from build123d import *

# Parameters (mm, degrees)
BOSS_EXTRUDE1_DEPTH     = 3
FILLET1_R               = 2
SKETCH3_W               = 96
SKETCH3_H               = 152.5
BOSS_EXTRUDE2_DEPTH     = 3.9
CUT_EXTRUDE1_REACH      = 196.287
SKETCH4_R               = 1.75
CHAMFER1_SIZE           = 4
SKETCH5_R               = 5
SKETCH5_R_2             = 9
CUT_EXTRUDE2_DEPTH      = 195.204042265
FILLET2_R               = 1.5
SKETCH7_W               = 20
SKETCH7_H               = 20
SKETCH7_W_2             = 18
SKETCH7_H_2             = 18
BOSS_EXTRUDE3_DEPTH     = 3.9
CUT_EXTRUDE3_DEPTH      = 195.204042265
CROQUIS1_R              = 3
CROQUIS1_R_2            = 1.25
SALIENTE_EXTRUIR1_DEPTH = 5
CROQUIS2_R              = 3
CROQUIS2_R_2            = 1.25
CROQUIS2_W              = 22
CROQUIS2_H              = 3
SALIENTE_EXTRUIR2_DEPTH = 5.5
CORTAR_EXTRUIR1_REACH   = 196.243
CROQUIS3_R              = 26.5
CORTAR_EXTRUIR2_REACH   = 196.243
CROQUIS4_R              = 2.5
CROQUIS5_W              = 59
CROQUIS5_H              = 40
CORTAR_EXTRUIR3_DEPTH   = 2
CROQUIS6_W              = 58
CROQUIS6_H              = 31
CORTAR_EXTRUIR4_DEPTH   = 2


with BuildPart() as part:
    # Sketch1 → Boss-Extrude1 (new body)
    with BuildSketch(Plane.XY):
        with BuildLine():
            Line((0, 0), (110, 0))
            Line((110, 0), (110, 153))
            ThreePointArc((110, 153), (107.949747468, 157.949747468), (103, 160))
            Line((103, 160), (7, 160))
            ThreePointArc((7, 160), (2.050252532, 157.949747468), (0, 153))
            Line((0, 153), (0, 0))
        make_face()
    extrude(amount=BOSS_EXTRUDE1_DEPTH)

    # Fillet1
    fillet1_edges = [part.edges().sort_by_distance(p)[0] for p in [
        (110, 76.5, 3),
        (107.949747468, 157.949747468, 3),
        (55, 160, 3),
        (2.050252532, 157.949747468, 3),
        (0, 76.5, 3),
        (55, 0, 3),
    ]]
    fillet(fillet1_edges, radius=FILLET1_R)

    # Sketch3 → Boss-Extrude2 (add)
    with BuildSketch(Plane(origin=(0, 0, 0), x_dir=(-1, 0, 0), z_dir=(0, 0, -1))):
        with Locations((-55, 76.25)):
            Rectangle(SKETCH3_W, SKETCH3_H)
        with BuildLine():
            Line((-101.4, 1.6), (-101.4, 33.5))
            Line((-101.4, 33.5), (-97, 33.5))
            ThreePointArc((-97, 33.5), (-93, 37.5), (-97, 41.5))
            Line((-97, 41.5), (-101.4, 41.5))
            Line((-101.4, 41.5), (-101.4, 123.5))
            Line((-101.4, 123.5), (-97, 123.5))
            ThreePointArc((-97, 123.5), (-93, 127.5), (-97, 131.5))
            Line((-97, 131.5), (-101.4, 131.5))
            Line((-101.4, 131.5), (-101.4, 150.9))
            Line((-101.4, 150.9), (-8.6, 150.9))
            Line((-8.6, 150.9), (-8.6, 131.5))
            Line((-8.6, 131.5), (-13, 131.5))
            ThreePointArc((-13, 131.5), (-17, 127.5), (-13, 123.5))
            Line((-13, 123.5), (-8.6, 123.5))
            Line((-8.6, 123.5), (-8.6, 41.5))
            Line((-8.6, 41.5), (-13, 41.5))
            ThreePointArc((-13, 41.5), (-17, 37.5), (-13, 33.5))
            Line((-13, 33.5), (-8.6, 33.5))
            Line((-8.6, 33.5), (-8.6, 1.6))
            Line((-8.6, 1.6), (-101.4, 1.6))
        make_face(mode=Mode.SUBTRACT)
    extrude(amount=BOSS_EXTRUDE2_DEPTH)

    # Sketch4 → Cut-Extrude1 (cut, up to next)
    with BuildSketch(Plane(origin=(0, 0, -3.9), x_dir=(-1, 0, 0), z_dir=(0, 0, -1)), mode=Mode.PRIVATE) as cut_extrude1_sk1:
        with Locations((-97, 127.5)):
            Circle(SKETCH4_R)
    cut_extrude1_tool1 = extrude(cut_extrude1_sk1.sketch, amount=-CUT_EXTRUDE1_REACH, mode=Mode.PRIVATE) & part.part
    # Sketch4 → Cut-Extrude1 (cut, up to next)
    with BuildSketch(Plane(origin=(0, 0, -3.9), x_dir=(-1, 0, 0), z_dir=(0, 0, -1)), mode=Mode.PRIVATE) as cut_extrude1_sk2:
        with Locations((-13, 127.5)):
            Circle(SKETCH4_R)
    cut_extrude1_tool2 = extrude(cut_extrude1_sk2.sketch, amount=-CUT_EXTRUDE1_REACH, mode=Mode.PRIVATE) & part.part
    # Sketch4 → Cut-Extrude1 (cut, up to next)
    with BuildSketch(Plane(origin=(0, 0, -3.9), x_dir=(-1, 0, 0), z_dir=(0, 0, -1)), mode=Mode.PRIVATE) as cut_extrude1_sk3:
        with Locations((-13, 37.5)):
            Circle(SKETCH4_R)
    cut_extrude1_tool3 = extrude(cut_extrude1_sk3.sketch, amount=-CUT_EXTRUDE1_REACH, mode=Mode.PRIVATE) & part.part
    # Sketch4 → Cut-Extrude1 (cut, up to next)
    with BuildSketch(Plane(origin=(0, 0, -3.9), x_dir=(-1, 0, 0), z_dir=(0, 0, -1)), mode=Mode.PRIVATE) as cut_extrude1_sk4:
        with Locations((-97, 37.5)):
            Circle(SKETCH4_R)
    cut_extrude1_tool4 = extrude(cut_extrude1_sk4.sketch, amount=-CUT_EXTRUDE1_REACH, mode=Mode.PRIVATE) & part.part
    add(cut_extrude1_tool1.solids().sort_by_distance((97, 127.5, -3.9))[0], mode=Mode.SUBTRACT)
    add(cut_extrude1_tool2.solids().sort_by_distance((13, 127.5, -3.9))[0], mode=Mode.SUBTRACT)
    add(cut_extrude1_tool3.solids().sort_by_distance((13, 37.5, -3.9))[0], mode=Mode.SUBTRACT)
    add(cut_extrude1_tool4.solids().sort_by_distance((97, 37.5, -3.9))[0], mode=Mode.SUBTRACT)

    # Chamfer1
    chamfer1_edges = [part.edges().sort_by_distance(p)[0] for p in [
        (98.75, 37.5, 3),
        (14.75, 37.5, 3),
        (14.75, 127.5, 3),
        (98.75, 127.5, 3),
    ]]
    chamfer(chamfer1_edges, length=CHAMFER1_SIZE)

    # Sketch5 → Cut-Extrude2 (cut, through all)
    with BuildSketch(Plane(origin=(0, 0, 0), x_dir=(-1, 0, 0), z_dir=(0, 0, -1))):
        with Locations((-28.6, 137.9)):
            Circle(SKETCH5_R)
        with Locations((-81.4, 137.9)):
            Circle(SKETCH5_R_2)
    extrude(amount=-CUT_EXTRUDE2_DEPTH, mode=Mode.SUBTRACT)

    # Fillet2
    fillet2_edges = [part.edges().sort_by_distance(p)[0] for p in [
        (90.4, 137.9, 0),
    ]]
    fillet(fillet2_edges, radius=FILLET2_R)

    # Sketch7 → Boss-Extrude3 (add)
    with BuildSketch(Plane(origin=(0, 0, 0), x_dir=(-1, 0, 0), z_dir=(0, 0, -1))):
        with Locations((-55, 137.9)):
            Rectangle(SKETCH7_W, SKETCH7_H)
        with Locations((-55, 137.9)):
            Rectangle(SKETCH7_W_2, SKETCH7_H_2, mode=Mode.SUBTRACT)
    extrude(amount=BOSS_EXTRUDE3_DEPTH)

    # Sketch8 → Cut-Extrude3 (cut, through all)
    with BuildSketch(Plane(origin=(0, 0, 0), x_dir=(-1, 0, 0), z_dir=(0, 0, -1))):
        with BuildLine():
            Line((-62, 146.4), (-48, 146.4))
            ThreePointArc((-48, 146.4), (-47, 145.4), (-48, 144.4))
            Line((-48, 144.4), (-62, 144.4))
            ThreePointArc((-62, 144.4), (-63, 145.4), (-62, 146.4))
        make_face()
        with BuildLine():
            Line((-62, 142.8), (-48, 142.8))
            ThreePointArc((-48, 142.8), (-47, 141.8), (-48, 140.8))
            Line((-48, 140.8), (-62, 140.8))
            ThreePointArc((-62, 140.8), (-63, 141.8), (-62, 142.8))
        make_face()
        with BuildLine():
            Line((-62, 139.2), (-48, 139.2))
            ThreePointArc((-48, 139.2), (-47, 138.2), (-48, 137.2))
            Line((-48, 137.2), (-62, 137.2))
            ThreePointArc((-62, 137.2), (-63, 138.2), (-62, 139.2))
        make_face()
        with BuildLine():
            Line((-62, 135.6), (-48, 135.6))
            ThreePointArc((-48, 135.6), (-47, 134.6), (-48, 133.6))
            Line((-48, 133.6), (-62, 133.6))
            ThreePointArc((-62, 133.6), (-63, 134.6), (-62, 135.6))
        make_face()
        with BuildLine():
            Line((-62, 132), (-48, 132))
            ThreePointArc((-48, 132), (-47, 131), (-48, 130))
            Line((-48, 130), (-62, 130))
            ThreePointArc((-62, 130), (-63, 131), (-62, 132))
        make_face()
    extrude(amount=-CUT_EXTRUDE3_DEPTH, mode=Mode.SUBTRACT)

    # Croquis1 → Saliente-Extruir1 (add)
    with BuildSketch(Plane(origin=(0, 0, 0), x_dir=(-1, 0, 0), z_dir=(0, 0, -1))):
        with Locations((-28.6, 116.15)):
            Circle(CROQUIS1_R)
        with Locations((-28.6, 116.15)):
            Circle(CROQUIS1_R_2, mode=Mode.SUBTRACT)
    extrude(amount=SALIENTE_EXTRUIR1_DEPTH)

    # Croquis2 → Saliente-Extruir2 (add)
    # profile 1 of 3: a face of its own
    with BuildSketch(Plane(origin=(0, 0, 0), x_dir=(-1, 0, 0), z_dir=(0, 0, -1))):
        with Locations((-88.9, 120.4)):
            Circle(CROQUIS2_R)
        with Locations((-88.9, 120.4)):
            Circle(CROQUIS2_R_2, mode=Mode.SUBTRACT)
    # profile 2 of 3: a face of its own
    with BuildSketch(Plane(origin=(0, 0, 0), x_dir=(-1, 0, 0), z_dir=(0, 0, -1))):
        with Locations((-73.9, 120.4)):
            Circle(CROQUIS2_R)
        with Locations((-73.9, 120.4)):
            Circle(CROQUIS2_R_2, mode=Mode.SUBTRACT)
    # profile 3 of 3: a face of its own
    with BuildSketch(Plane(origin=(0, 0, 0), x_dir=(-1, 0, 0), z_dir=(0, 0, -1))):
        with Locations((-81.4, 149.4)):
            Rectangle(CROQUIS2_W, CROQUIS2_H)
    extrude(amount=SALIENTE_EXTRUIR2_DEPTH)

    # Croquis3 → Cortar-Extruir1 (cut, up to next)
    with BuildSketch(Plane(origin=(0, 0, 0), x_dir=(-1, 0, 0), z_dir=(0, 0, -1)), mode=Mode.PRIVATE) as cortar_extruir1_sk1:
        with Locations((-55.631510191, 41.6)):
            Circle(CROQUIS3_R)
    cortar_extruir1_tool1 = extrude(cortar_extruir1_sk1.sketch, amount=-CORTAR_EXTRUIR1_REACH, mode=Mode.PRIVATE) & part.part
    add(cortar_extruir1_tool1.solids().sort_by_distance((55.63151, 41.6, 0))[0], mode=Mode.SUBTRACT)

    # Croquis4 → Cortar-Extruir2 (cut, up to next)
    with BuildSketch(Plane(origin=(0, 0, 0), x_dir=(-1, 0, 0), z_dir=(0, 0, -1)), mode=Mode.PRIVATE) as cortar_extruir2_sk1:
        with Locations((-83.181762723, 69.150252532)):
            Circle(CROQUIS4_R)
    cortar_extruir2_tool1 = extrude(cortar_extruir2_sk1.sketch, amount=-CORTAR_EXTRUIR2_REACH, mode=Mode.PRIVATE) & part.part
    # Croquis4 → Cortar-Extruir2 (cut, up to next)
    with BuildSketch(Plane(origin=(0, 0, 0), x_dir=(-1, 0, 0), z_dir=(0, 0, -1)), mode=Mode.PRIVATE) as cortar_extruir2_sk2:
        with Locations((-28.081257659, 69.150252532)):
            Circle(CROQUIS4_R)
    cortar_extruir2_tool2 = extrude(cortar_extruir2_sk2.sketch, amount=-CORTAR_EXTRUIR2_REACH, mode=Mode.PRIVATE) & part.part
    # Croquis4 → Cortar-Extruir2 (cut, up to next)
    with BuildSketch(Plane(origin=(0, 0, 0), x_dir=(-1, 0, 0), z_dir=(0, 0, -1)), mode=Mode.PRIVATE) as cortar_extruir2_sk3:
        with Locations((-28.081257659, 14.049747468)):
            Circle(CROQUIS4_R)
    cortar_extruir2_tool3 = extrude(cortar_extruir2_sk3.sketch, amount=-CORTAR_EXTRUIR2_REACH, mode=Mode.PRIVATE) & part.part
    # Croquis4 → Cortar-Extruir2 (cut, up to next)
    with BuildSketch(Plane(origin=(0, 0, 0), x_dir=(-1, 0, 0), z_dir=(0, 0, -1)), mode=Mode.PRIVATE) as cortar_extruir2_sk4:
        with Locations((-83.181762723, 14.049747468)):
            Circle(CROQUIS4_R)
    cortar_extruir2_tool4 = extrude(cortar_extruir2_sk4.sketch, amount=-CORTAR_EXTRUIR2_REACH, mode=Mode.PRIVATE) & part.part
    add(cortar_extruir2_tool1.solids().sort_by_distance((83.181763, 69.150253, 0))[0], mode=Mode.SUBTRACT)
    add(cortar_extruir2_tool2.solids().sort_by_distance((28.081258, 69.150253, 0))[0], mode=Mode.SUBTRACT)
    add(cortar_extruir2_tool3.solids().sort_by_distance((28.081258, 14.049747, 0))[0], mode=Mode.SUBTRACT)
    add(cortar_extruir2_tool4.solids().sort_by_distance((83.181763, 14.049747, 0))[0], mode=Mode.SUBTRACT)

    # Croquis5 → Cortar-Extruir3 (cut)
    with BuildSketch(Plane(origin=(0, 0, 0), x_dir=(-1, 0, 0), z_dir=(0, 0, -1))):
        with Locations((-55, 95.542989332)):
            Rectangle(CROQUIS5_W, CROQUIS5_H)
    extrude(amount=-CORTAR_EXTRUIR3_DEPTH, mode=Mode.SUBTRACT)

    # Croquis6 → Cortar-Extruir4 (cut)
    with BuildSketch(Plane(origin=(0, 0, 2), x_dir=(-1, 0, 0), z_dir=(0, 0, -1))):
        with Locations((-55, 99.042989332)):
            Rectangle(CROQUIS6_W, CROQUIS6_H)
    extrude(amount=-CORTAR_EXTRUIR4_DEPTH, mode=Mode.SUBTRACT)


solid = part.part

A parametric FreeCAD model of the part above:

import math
import FreeCAD as App
import Part
import Sketcher

V = App.Vector


def edges_at(feature, points):
    """Names of the edges that pass closest to the given points."""
    edges = feature.Shape.Edges
    near = lambda p: min(range(len(edges)), key=lambda i: edges[i].distToShape(Part.Vertex(*p))[0])
    return sorted({f"Edge{near(p) + 1}" for p in points})


def add_polygon(sketch, points):
    """Adds a closed chain of lines whose ends are joined by coincident constraints."""
    first, n = sketch.GeometryCount, len(points)
    for a, b in zip(points, points[1:] + points[:1]):
        sketch.addGeometry(Part.LineSegment(App.Vector(*a, 0), App.Vector(*b, 0)), False)
    for i in range(n):
        sketch.addConstraint(Sketcher.Constraint("Coincident", first + i, 2, first + (i + 1) % n, 1))

doc = App.newDocument("Part")
params = doc.addObject("Spreadsheet::Sheet", "Params")
for row, (alias, value) in enumerate([
    ("sketch1_radius", "7 mm"),
    ("sketch1_width", "110 mm"),
    ("sketch1_height", "153 mm"),
    ("pad1_length", "3 mm"),
    ("fillet_radius", "2 mm"),
    ("sketch2_radius", "4 mm"),
    ("sketch2_width", "96 mm"),
    ("sketch2_height", "82 mm"),
    ("sketch2_width2", "92.8 mm"),
    ("sketch2_width3", "4.4 mm"),
    ("pad2_length", "3.9 mm"),
    ("sketch3_diameter", "3.5 mm"),
    ("sketch4_diameter", "3.5 mm"),
    ("sketch5_diameter", "3.5 mm"),
    ("sketch6_diameter", "3.5 mm"),
    ("chamfer_size", "4 mm"),
    ("sketch7_diameter", "10 mm"),
    ("sketch7_diameter2", "18 mm"),
    ("fillet2_radius", "1.5 mm"),
    ("sketch8_width", "20 mm"),
    ("sketch8_width2", "18 mm"),
    ("pad3_length", "3.9 mm"),
    ("sketch9_radius", "1 mm"),
    ("sketch9_width", "14 mm"),
    ("sketch10_diameter", "6 mm"),
    ("sketch10_diameter2", "2.5 mm"),
    ("pad4_length", "5 mm"),
    ("sketch11_diameter", "6 mm"),
    ("sketch11_diameter2", "2.5 mm"),
    ("sketch11_width", "22 mm"),
    ("sketch11_height", "3 mm"),
    ("pad5_length", "5.5 mm"),
    ("sketch12_diameter", "53 mm"),
    ("sketch13_diameter", "5 mm"),
    ("sketch14_diameter", "5 mm"),
    ("sketch15_diameter", "5 mm"),
    ("sketch16_diameter", "5 mm"),
    ("sketch17_width", "59 mm"),
    ("sketch17_height", "40 mm"),
    ("pocket12_length", "2 mm"),
    ("sketch18_width", "58 mm"),
    ("sketch18_height", "31 mm"),
    ("pocket13_length", "2 mm"),
], start=1):
    params.set(f"A{row}", alias)
    params.set(f"B{row}", "=" + value)
    params.setAlias(f"B{row}", alias)

body = doc.addObject("PartDesign::Body", "Body")

sketch1 = body.newObject("Sketcher::SketchObject", "Sketch")
sketch1.AttachmentSupport = (doc.getObject("XY_Plane"), [""])
sketch1.MapMode = "FlatFace"
sketch1.addGeometry([
    Part.LineSegment(V(0, 0, 0), V(110, 0, 0)),
    Part.LineSegment(V(110, 0, 0), V(110, 153, 0)),
    Part.ArcOfCircle(Part.Circle(V(103, 153, 0), V(0, 0, 1), 7), math.radians(0), math.radians(90)),
    Part.LineSegment(V(103, 160, 0), V(7, 160, 0)),
    Part.ArcOfCircle(Part.Circle(V(7, 153, 0), V(0, 0, 1), 7), math.radians(90), math.radians(180)),
    Part.LineSegment(V(0, 153, 0), V(0, 0, 0)),
], False)
sketch1.addConstraint([
    Sketcher.Constraint("Coincident", 0, 2, 1, 1),
    Sketcher.Constraint("Tangent", 1, 2, 2, 1),
    Sketcher.Constraint("Tangent", 2, 2, 3, 1),
    Sketcher.Constraint("Tangent", 3, 2, 4, 1),
    Sketcher.Constraint("Tangent", 4, 2, 5, 1),
    Sketcher.Constraint("Coincident", 5, 2, 0, 1),
    Sketcher.Constraint("Horizontal", 0),
    Sketcher.Constraint("Vertical", 1),
    Sketcher.Constraint("Horizontal", 3),
    Sketcher.Constraint("Vertical", 5),
    Sketcher.Constraint("Coincident", 5, 2, -1, 1),
    Sketcher.Constraint("Equal", 2, 4),
    Sketcher.Constraint("Radius", 2, 7.0),
    Sketcher.Constraint("DistanceX", 0, 1, 0, 2, 110.0),
    Sketcher.Constraint("DistanceY", 1, 1, 1, 2, 153.0),
])
sketch1.setExpression("Constraints[12]", "Params.sketch1_radius")
sketch1.setExpression("Constraints[13]", "Params.sketch1_width")
sketch1.setExpression("Constraints[14]", "Params.sketch1_height")
pad1 = body.newObject("PartDesign::Pad", "Pad")
pad1.Profile = sketch1
pad1.setExpression("Length", "Params.pad1_length")
doc.recompute()

fillet = body.newObject("PartDesign::Fillet", "Fillet")
fillet.Base = (pad1, edges_at(pad1, [
    (110, 76.5, 3),
    (107.95, 157.95, 3),
    (55, 160, 3),
    (2.05, 157.95, 3),
    (0, 76.5, 3),
    (55, 0, 3),
]))
fillet.setExpression("Radius", "Params.fillet_radius")

sketch2 = body.newObject("Sketcher::SketchObject", "Sketch001")
sketch2.AttachmentSupport = (doc.getObject("XY_Plane"), [""])
sketch2.MapMode = "FlatFace"
add_polygon(sketch2, [(103, 152.5), (103, 0), (7, 0), (7, 152.5)])
sketch2.addGeometry(Part.LineSegment(V(8.6, 1.6, 0), V(101.4, 1.6, 0)), False)
sketch2.addGeometry(Part.LineSegment(V(101.4, 1.6, 0), V(101.4, 33.5, 0)), False)
sketch2.addGeometry(Part.LineSegment(V(101.4, 33.5, 0), V(97, 33.5, 0)), False)
sketch2.addGeometry(Part.ArcOfCircle(Part.Circle(V(97, 37.5, 0), V(0, 0, 1), 4), math.radians(90), math.radians(270)), False)
sketch2.addGeometry(Part.LineSegment(V(97, 41.5, 0), V(101.4, 41.5, 0)), False)
sketch2.addGeometry(Part.LineSegment(V(101.4, 41.5, 0), V(101.4, 123.5, 0)), False)
sketch2.addGeometry(Part.LineSegment(V(101.4, 123.5, 0), V(97, 123.5, 0)), False)
sketch2.addGeometry(Part.ArcOfCircle(Part.Circle(V(97, 127.5, 0), V(0, 0, 1), 4), math.radians(90), math.radians(270)), False)
sketch2.addGeometry(Part.LineSegment(V(97, 131.5, 0), V(101.4, 131.5, 0)), False)
sketch2.addGeometry(Part.LineSegment(V(101.4, 131.5, 0), V(101.4, 150.9, 0)), False)
sketch2.addGeometry(Part.LineSegment(V(101.4, 150.9, 0), V(8.6, 150.9, 0)), False)
sketch2.addGeometry(Part.LineSegment(V(8.6, 150.9, 0), V(8.6, 131.5, 0)), False)
sketch2.addGeometry(Part.LineSegment(V(8.6, 131.5, 0), V(13, 131.5, 0)), False)
sketch2.addGeometry(Part.ArcOfCircle(Part.Circle(V(13, 127.5, 0), V(0, 0, 1), 4), math.radians(-90), math.radians(90)), False)
sketch2.addGeometry(Part.LineSegment(V(13, 123.5, 0), V(8.6, 123.5, 0)), False)
sketch2.addGeometry(Part.LineSegment(V(8.6, 123.5, 0), V(8.6, 41.5, 0)), False)
sketch2.addGeometry(Part.LineSegment(V(8.6, 41.5, 0), V(13, 41.5, 0)), False)
sketch2.addGeometry(Part.ArcOfCircle(Part.Circle(V(13, 37.5, 0), V(0, 0, 1), 4), math.radians(-90), math.radians(90)), False)
sketch2.addGeometry(Part.LineSegment(V(13, 33.5, 0), V(8.6, 33.5, 0)), False)
sketch2.addGeometry(Part.LineSegment(V(8.6, 33.5, 0), V(8.6, 1.6, 0)), False)
sketch2.addConstraint([
    Sketcher.Constraint("Coincident", 4, 2, 5, 1),
    Sketcher.Constraint("Coincident", 5, 2, 6, 1),
    Sketcher.Constraint("Tangent", 6, 2, 7, 2),
    Sketcher.Constraint("Tangent", 7, 1, 8, 1),
    Sketcher.Constraint("Coincident", 8, 2, 9, 1),
    Sketcher.Constraint("Coincident", 9, 2, 10, 1),
    Sketcher.Constraint("Tangent", 10, 2, 11, 2),
    Sketcher.Constraint("Tangent", 11, 1, 12, 1),
    Sketcher.Constraint("Coincident", 12, 2, 13, 1),
    Sketcher.Constraint("Coincident", 13, 2, 14, 1),
    Sketcher.Constraint("Coincident", 14, 2, 15, 1),
    Sketcher.Constraint("Coincident", 15, 2, 16, 1),
    Sketcher.Constraint("Tangent", 16, 2, 17, 2),
    Sketcher.Constraint("Tangent", 17, 1, 18, 1),
    Sketcher.Constraint("Coincident", 18, 2, 19, 1),
    Sketcher.Constraint("Coincident", 19, 2, 20, 1),
    Sketcher.Constraint("Tangent", 20, 2, 21, 2),
    Sketcher.Constraint("Tangent", 21, 1, 22, 1),
    Sketcher.Constraint("Coincident", 22, 2, 23, 1),
    Sketcher.Constraint("Coincident", 23, 2, 4, 1),
    Sketcher.Constraint("Vertical", 0),
    Sketcher.Constraint("Horizontal", 1),
    Sketcher.Constraint("Vertical", 2),
    Sketcher.Constraint("Horizontal", 3),
    Sketcher.Constraint("Horizontal", 4),
    Sketcher.Constraint("Vertical", 5),
    Sketcher.Constraint("Horizontal", 6),
    Sketcher.Constraint("Horizontal", 8),
    Sketcher.Constraint("Vertical", 9),
    Sketcher.Constraint("Horizontal", 10),
    Sketcher.Constraint("Horizontal", 12),
    Sketcher.Constraint("Vertical", 13),
    Sketcher.Constraint("Horizontal", 14),
    Sketcher.Constraint("Vertical", 15),
    Sketcher.Constraint("Horizontal", 16),
    Sketcher.Constraint("Horizontal", 18),
    Sketcher.Constraint("Vertical", 19),
    Sketcher.Constraint("Horizontal", 20),
    Sketcher.Constraint("Horizontal", 22),
    Sketcher.Constraint("Vertical", 23),
    Sketcher.Constraint("Equal", 7, 11),
    Sketcher.Constraint("Equal", 11, 17),
    Sketcher.Constraint("Equal", 17, 21),
    Sketcher.Constraint("PointOnObject", 0, 2, -1),
    Sketcher.Constraint("Horizontal", 11, 3, 17, 3),
    Sketcher.Constraint("Horizontal", 7, 3, 21, 3),
    Sketcher.Constraint("Vertical", 7, 3, 11, 3),
    Sketcher.Constraint("Vertical", 17, 3, 21, 3),
    Sketcher.Constraint("Vertical", 5, 2, 8, 2),
    Sketcher.Constraint("Vertical", 9, 2, 12, 2),
    Sketcher.Constraint("Vertical", 15, 2, 18, 2),
    Sketcher.Constraint("Vertical", 19, 2, 22, 2),
    Sketcher.Constraint("Equal", 12, 16),
    Sketcher.Constraint("Radius", 7, 4.0),
    Sketcher.Constraint("DistanceX", 1, 2, 1, 1, 96.0),
    Sketcher.Constraint("DistanceY", 9, 1, 9, 2, 82.0),
    Sketcher.Constraint("DistanceX", 4, 1, 4, 2, 92.8),
    Sketcher.Constraint("DistanceX", 6, 2, 6, 1, 4.4),
    Sketcher.Constraint("DistanceY", 0, 2, 0, 1, 152.5),
    Sketcher.Constraint("DistanceY", 5, 1, 5, 2, 31.9),
    Sketcher.Constraint("DistanceY", 13, 1, 13, 2, 19.4),
    Sketcher.Constraint("DistanceX", -1, 1, 7, 3, 97.0),
    Sketcher.Constraint("DistanceX", -1, 1, 0, 2, 103.0),
    Sketcher.Constraint("DistanceY", 17, 3, 2, 2, 25.0),
])
sketch2.setExpression("Constraints[57]", "Params.sketch2_radius")
sketch2.setExpression("Constraints[58]", "Params.sketch2_width")
sketch2.setExpression("Constraints[59]", "Params.sketch2_height")
sketch2.setExpression("Constraints[60]", "Params.sketch2_width2")
sketch2.setExpression("Constraints[61]", "Params.sketch2_width3")
pad2 = body.newObject("PartDesign::Pad", "Pad001")
pad2.Profile = sketch2
pad2.setExpression("Length", "Params.pad2_length")
pad2.Reversed = True

sketch3 = body.newObject("Sketcher::SketchObject", "Sketch002")
sketch3.AttachmentSupport = (doc.getObject("XY_Plane"), [""])
sketch3.MapMode = "FlatFace"
sketch3.AttachmentOffset = App.Placement(V(0, 0, -3.9), App.Rotation())
sketch3.addGeometry(Part.Circle(V(97, 127.5, 0), V(0, 0, 1), 1.8), False)
sketch3.addConstraint([
    Sketcher.Constraint("Diameter", 0, 3.5),
    Sketcher.Constraint("DistanceX", -1, 1, 0, 3, 97.0),
    Sketcher.Constraint("DistanceY", -1, 1, 0, 3, 127.5),
])
sketch3.setExpression("Constraints[0]", "Params.sketch3_diameter")
pocket1 = body.newObject("PartDesign::Pocket", "Pocket")
pocket1.Profile = sketch3
pocket1.Type = "UpToFirst"
pocket1.Reversed = True

sketch4 = body.newObject("Sketcher::SketchObject", "Sketch003")
sketch4.AttachmentSupport = (doc.getObject("XY_Plane"), [""])
sketch4.MapMode = "FlatFace"
sketch4.AttachmentOffset = App.Placement(V(0, 0, -3.9), App.Rotation())
sketch4.addGeometry(Part.Circle(V(13, 127.5, 0), V(0, 0, 1), 1.8), False)
sketch4.addConstraint([
    Sketcher.Constraint("Diameter", 0, 3.5),
    Sketcher.Constraint("DistanceX", -1, 1, 0, 3, 13.0),
    Sketcher.Constraint("DistanceY", -1, 1, 0, 3, 127.5),
])
sketch4.setExpression("Constraints[0]", "Params.sketch4_diameter")
pocket2 = body.newObject("PartDesign::Pocket", "Pocket001")
pocket2.Profile = sketch4
pocket2.Type = "UpToFirst"
pocket2.Reversed = True

sketch5 = body.newObject("Sketcher::SketchObject", "Sketch004")
sketch5.AttachmentSupport = (doc.getObject("XY_Plane"), [""])
sketch5.MapMode = "FlatFace"
sketch5.AttachmentOffset = App.Placement(V(0, 0, -3.9), App.Rotation())
sketch5.addGeometry(Part.Circle(V(13, 37.5, 0), V(0, 0, 1), 1.8), False)
sketch5.addConstraint([
    Sketcher.Constraint("Diameter", 0, 3.5),
    Sketcher.Constraint("DistanceX", -1, 1, 0, 3, 13.0),
    Sketcher.Constraint("DistanceY", -1, 1, 0, 3, 37.5),
])
sketch5.setExpression("Constraints[0]", "Params.sketch5_diameter")
pocket3 = body.newObject("PartDesign::Pocket", "Pocket002")
pocket3.Profile = sketch5
pocket3.Type = "UpToFirst"
pocket3.Reversed = True

sketch6 = body.newObject("Sketcher::SketchObject", "Sketch005")
sketch6.AttachmentSupport = (doc.getObject("XY_Plane"), [""])
sketch6.MapMode = "FlatFace"
sketch6.AttachmentOffset = App.Placement(V(0, 0, -3.9), App.Rotation())
sketch6.addGeometry(Part.Circle(V(97, 37.5, 0), V(0, 0, 1), 1.8), False)
sketch6.addConstraint([
    Sketcher.Constraint("Diameter", 0, 3.5),
    Sketcher.Constraint("DistanceX", -1, 1, 0, 3, 97.0),
    Sketcher.Constraint("DistanceY", -1, 1, 0, 3, 37.5),
])
sketch6.setExpression("Constraints[0]", "Params.sketch6_diameter")
pocket4 = body.newObject("PartDesign::Pocket", "Pocket003")
pocket4.Profile = sketch6
pocket4.Type = "UpToFirst"
pocket4.Reversed = True
doc.recompute()

chamfer = body.newObject("PartDesign::Chamfer", "Chamfer")
chamfer.Base = (pocket4, edges_at(pocket4, [
    (98.75, 37.5, 3),
    (14.75, 37.5, 3),
    (14.75, 127.5, 3),
    (98.75, 127.5, 3),
]))
chamfer.setExpression("Size", "Params.chamfer_size")

sketch7 = body.newObject("Sketcher::SketchObject", "Sketch006")
sketch7.AttachmentSupport = (doc.getObject("XY_Plane"), [""])
sketch7.MapMode = "FlatFace"
sketch7.addGeometry([
    Part.Circle(V(29, 138, 0), V(0, 0, 1), 5),
    Part.Circle(V(81, 138, 0), V(0, 0, 1), 9),
], False)
sketch7.addConstraint([
    Sketcher.Constraint("Horizontal", 0, 3, 1, 3),
    Sketcher.Constraint("Diameter", 0, 10.0),
    Sketcher.Constraint("Diameter", 1, 18.0),
    Sketcher.Constraint("DistanceX", -1, 1, 0, 3, 28.6),
    Sketcher.Constraint("DistanceY", -1, 1, 0, 3, 137.9),
    Sketcher.Constraint("DistanceX", -1, 1, 1, 3, 81.4),
])
sketch7.setExpression("Constraints[1]", "Params.sketch7_diameter")
sketch7.setExpression("Constraints[2]", "Params.sketch7_diameter2")
pocket5 = body.newObject("PartDesign::Pocket", "Pocket004")
pocket5.Profile = sketch7
pocket5.Type = "ThroughAll"
pocket5.Reversed = True
doc.recompute()

fillet2 = body.newObject("PartDesign::Fillet", "Fillet001")
fillet2.Base = (pocket5, edges_at(pocket5, [(90.4, 137.9, 0)]))
fillet2.setExpression("Radius", "Params.fillet2_radius")

sketch8 = body.newObject("Sketcher::SketchObject", "Sketch007")
sketch8.AttachmentSupport = (doc.getObject("XY_Plane"), [""])
sketch8.MapMode = "FlatFace"
add_polygon(sketch8, [(65, 148), (65, 128), (45, 128), (45, 148)])
add_polygon(sketch8, [(46, 129), (64, 129), (64, 147), (46, 147)])
sketch8.addConstraint([
    Sketcher.Constraint("Vertical", 0),
    Sketcher.Constraint("Horizontal", 1),
    Sketcher.Constraint("Vertical", 2),
    Sketcher.Constraint("Horizontal", 3),
    Sketcher.Constraint("Horizontal", 4),
    Sketcher.Constraint("Vertical", 5),
    Sketcher.Constraint("Horizontal", 6),
    Sketcher.Constraint("Vertical", 7),
    Sketcher.Constraint("Equal", 3, 0),
    Sketcher.Constraint("Equal", 6, 5),
    Sketcher.Constraint("DistanceX", 1, 2, 1, 1, 20.0),
    Sketcher.Constraint("DistanceX", 4, 1, 4, 2, 18.0),
    Sketcher.Constraint("DistanceX", -1, 1, 0, 2, 65.0),
    Sketcher.Constraint("DistanceX", -1, 1, 4, 2, 64.0),
    Sketcher.Constraint("DistanceY", 0, 2, 4, 2, 1.0),
    Sketcher.Constraint("DistanceY", -1, 1, 0, 2, 127.9),
])
sketch8.setExpression("Constraints[18]", "Params.sketch8_width")
sketch8.setExpression("Constraints[19]", "Params.sketch8_width2")
pad3 = body.newObject("PartDesign::Pad", "Pad002")
pad3.Profile = sketch8
pad3.setExpression("Length", "Params.pad3_length")
pad3.Reversed = True

sketch9 = body.newObject("Sketcher::SketchObject", "Sketch008")
sketch9.AttachmentSupport = (doc.getObject("XY_Plane"), [""])
sketch9.MapMode = "FlatFace"
sketch9.addGeometry([
    Part.LineSegment(V(48, 146.4, 0), V(62, 146.4, 0)),
    Part.ArcOfCircle(Part.Circle(V(62, 145.4, 0), V(0, 0, 1), 1), math.radians(-90), math.radians(90)),
    Part.LineSegment(V(62, 144.4, 0), V(48, 144.4, 0)),
    Part.ArcOfCircle(Part.Circle(V(48, 145.4, 0), V(0, 0, 1), 1), math.radians(90), math.radians(270)),
    Part.LineSegment(V(48, 142.8, 0), V(62, 142.8, 0)),
    Part.ArcOfCircle(Part.Circle(V(62, 141.8, 0), V(0, 0, 1), 1), math.radians(-90), math.radians(90)),
    Part.LineSegment(V(62, 140.8, 0), V(48, 140.8, 0)),
    Part.ArcOfCircle(Part.Circle(V(48, 141.8, 0), V(0, 0, 1), 1), math.radians(90), math.radians(270)),
    Part.LineSegment(V(48, 139.2, 0), V(62, 139.2, 0)),
    Part.ArcOfCircle(Part.Circle(V(62, 138.2, 0), V(0, 0, 1), 1), math.radians(-90), math.radians(90)),
    Part.LineSegment(V(62, 137.2, 0), V(48, 137.2, 0)),
    Part.ArcOfCircle(Part.Circle(V(48, 138.2, 0), V(0, 0, 1), 1), math.radians(90), math.radians(270)),
    Part.LineSegment(V(48, 135.6, 0), V(62, 135.6, 0)),
    Part.ArcOfCircle(Part.Circle(V(62, 134.6, 0), V(0, 0, 1), 1), math.radians(-90), math.radians(90)),
    Part.LineSegment(V(62, 133.6, 0), V(48, 133.6, 0)),
    Part.ArcOfCircle(Part.Circle(V(48, 134.6, 0), V(0, 0, 1), 1), math.radians(90), math.radians(270)),
    Part.LineSegment(V(48, 132, 0), V(62, 132, 0)),
    Part.ArcOfCircle(Part.Circle(V(62, 131, 0), V(0, 0, 1), 1), math.radians(-90), math.radians(90)),
    Part.LineSegment(V(62, 130, 0), V(48, 130, 0)),
    Part.ArcOfCircle(Part.Circle(V(48, 131, 0), V(0, 0, 1), 1), math.radians(90), math.radians(270)),
], False)
sketch9.addConstraint([
    Sketcher.Constraint("Tangent", 0, 2, 1, 2),
    Sketcher.Constraint("Tangent", 1, 1, 2, 1),
    Sketcher.Constraint("Tangent", 2, 2, 3, 2),
    Sketcher.Constraint("Tangent", 3, 1, 0, 1),
    Sketcher.Constraint("Tangent", 4, 2, 5, 2),
    Sketcher.Constraint("Tangent", 5, 1, 6, 1),
    Sketcher.Constraint("Tangent", 6, 2, 7, 2),
    Sketcher.Constraint("Tangent", 7, 1, 4, 1),
    Sketcher.Constraint("Tangent", 8, 2, 9, 2),
    Sketcher.Constraint("Tangent", 9, 1, 10, 1),
    Sketcher.Constraint("Tangent", 10, 2, 11, 2),
    Sketcher.Constraint("Tangent", 11, 1, 8, 1),
    Sketcher.Constraint("Tangent", 12, 2, 13, 2),
    Sketcher.Constraint("Tangent", 13, 1, 14, 1),
    Sketcher.Constraint("Tangent", 14, 2, 15, 2),
    Sketcher.Constraint("Tangent", 15, 1, 12, 1),
    Sketcher.Constraint("Tangent", 16, 2, 17, 2),
    Sketcher.Constraint("Tangent", 17, 1, 18, 1),
    Sketcher.Constraint("Tangent", 18, 2, 19, 2),
    Sketcher.Constraint("Tangent", 19, 1, 16, 1),
    Sketcher.Constraint("Horizontal", 0),
    Sketcher.Constraint("Horizontal", 2),
    Sketcher.Constraint("Horizontal", 4),
    Sketcher.Constraint("Horizontal", 6),
    Sketcher.Constraint("Horizontal", 8),
    Sketcher.Constraint("Horizontal", 10),
    Sketcher.Constraint("Horizontal", 12),
    Sketcher.Constraint("Horizontal", 14),
    Sketcher.Constraint("Horizontal", 16),
    Sketcher.Constraint("Horizontal", 18),
    Sketcher.Constraint("Equal", 3, 5),
    Sketcher.Constraint("Equal", 7, 9),
    Sketcher.Constraint("Equal", 11, 13),
    Sketcher.Constraint("Equal", 15, 17),
    Sketcher.Constraint("Vertical", 1, 3, 5, 3),
    Sketcher.Constraint("Vertical", 3, 3, 7, 3),
    Sketcher.Constraint("Vertical", 5, 3, 9, 3),
    Sketcher.Constraint("Vertical", 7, 3, 11, 3),
    Sketcher.Constraint("Vertical", 9, 3, 13, 3),
    Sketcher.Constraint("Vertical", 11, 3, 15, 3),
    Sketcher.Constraint("Vertical", 13, 3, 17, 3),
    Sketcher.Constraint("Vertical", 15, 3, 19, 3),
    Sketcher.Constraint("Radius", 1, 1.0),
    Sketcher.Constraint("DistanceX", 0, 1, 0, 2, 14.0),
    Sketcher.Constraint("DistanceX", -1, 1, 1, 3, 62.0),
    Sketcher.Constraint("DistanceY", -1, 1, 17, 3, 131.0),
    Sketcher.Constraint("DistanceY", -1, 1, 1, 3, 145.4),
    Sketcher.Constraint("DistanceY", -1, 1, 5, 3, 141.8),
    Sketcher.Constraint("DistanceY", -1, 1, 9, 3, 138.2),
    Sketcher.Constraint("DistanceY", -1, 1, 13, 3, 134.6),
])
sketch9.setExpression("Constraints[42]", "Params.sketch9_radius")
sketch9.setExpression("Constraints[43]", "Params.sketch9_width")
pocket6 = body.newObject("PartDesign::Pocket", "Pocket005")
pocket6.Profile = sketch9
pocket6.Type = "ThroughAll"
pocket6.Reversed = True

sketch10 = body.newObject("Sketcher::SketchObject", "Sketch009")
sketch10.AttachmentSupport = (doc.getObject("XY_Plane"), [""])
sketch10.MapMode = "FlatFace"
sketch10.addGeometry([
    Part.Circle(V(28.6, 116.2, 0), V(0, 0, 1), 3),
    Part.Circle(V(28.6, 116.2, 0), V(0, 0, 1), 1.2),
], False)
sketch10.addConstraint([
    Sketcher.Constraint("Coincident", 1, 3, 0, 3),
    Sketcher.Constraint("Diameter", 0, 6.0),
    Sketcher.Constraint("Diameter", 1, 2.5),
    Sketcher.Constraint("DistanceX", -1, 1, 0, 3, 28.6),
    Sketcher.Constraint("DistanceY", -1, 1, 0, 3, 116.15),
])
sketch10.setExpression("Constraints[1]", "Params.sketch10_diameter")
sketch10.setExpression("Constraints[2]", "Params.sketch10_diameter2")
pad4 = body.newObject("PartDesign::Pad", "Pad003")
pad4.Profile = sketch10
pad4.setExpression("Length", "Params.pad4_length")
pad4.Reversed = True

sketch11 = body.newObject("Sketcher::SketchObject", "Sketch010")
sketch11.AttachmentSupport = (doc.getObject("XY_Plane"), [""])
sketch11.MapMode = "FlatFace"
sketch11.addGeometry(Part.Circle(V(88.9, 120.4, 0), V(0, 0, 1), 3), False)
sketch11.addGeometry(Part.Circle(V(88.9, 120.4, 0), V(0, 0, 1), 1.2), False)
sketch11.addGeometry(Part.Circle(V(73.9, 120.4, 0), V(0, 0, 1), 3), False)
sketch11.addGeometry(Part.Circle(V(73.9, 120.4, 0), V(0, 0, 1), 1.2), False)
add_polygon(sketch11, [(92.4, 150.9), (92.4, 147.9), (70.4, 147.9), (70.4, 150.9)])
sketch11.addConstraint([
    Sketcher.Constraint("Vertical", 4),
    Sketcher.Constraint("Horizontal", 5),
    Sketcher.Constraint("Vertical", 6),
    Sketcher.Constraint("Horizontal", 7),
    Sketcher.Constraint("Coincident", 1, 3, 0, 3),
    Sketcher.Constraint("Coincident", 3, 3, 2, 3),
    Sketcher.Constraint("Equal", 0, 2),
    Sketcher.Constraint("Equal", 1, 3),
    Sketcher.Constraint("Horizontal", 1, 3, 2, 3),
    Sketcher.Constraint("Diameter", 0, 6.0),
    Sketcher.Constraint("Diameter", 1, 2.5),
    Sketcher.Constraint("DistanceX", 5, 2, 5, 1, 22.0),
    Sketcher.Constraint("DistanceY", 4, 2, 4, 1, 3.0),
    Sketcher.Constraint("DistanceX", 2, 3, 0, 3, 15.0),
    Sketcher.Constraint("DistanceX", -1, 1, 0, 3, 88.9),
    Sketcher.Constraint("DistanceY", -1, 1, 0, 3, 120.4),
    Sketcher.Constraint("DistanceX", -1, 1, 4, 2, 92.4),
    Sketcher.Constraint("DistanceY", -1, 1, 4, 2, 147.9),
])
sketch11.setExpression("Constraints[13]", "Params.sketch11_diameter")
sketch11.setExpression("Constraints[14]", "Params.sketch11_diameter2")
sketch11.setExpression("Constraints[15]", "Params.sketch11_width")
sketch11.setExpression("Constraints[16]", "Params.sketch11_height")
pad5 = body.newObject("PartDesign::Pad", "Pad004")
pad5.Profile = sketch11
pad5.setExpression("Length", "Params.pad5_length")
pad5.Reversed = True

sketch12 = body.newObject("Sketcher::SketchObject", "Sketch011")
sketch12.AttachmentSupport = (doc.getObject("XY_Plane"), [""])
sketch12.MapMode = "FlatFace"
sketch12.addGeometry(Part.Circle(V(56, 42, 0), V(0, 0, 1), 26), False)
sketch12.addConstraint([
    Sketcher.Constraint("Diameter", 0, 53.0),
    Sketcher.Constraint("DistanceY", -1, 1, 0, 3, 41.6),
    Sketcher.Constraint("DistanceX", -1, 1, 0, 3, 55.63151),
])
sketch12.setExpression("Constraints[0]", "Params.sketch12_diameter")
pocket7 = body.newObject("PartDesign::Pocket", "Pocket006")
pocket7.Profile = sketch12
pocket7.Type = "UpToFirst"
pocket7.Reversed = True

sketch13 = body.newObject("Sketcher::SketchObject", "Sketch012")
sketch13.AttachmentSupport = (doc.getObject("XY_Plane"), [""])
sketch13.MapMode = "FlatFace"
sketch13.addGeometry(Part.Circle(V(83.2, 69.2, 0), V(0, 0, 1), 2.5), False)
sketch13.addConstraint([
    Sketcher.Constraint("Diameter", 0, 5.0),
    Sketcher.Constraint("DistanceX", -1, 1, 0, 3, 83.181763),
    Sketcher.Constraint("DistanceY", -1, 1, 0, 3, 69.150253),
])
sketch13.setExpression("Constraints[0]", "Params.sketch13_diameter")
pocket8 = body.newObject("PartDesign::Pocket", "Pocket007")
pocket8.Profile = sketch13
pocket8.Type = "UpToFirst"
pocket8.Reversed = True

sketch14 = body.newObject("Sketcher::SketchObject", "Sketch013")
sketch14.AttachmentSupport = (doc.getObject("XY_Plane"), [""])
sketch14.MapMode = "FlatFace"
sketch14.addGeometry(Part.Circle(V(28.1, 69.2, 0), V(0, 0, 1), 2.5), False)
sketch14.addConstraint([
    Sketcher.Constraint("Diameter", 0, 5.0),
    Sketcher.Constraint("DistanceX", -1, 1, 0, 3, 28.081258),
    Sketcher.Constraint("DistanceY", -1, 1, 0, 3, 69.150253),
])
sketch14.setExpression("Constraints[0]", "Params.sketch14_diameter")
pocket9 = body.newObject("PartDesign::Pocket", "Pocket008")
pocket9.Profile = sketch14
pocket9.Type = "UpToFirst"
pocket9.Reversed = True

sketch15 = body.newObject("Sketcher::SketchObject", "Sketch014")
sketch15.AttachmentSupport = (doc.getObject("XY_Plane"), [""])
sketch15.MapMode = "FlatFace"
sketch15.addGeometry(Part.Circle(V(28.1, 14, 0), V(0, 0, 1), 2.5), False)
sketch15.addConstraint([
    Sketcher.Constraint("Diameter", 0, 5.0),
    Sketcher.Constraint("DistanceX", -1, 1, 0, 3, 28.081258),
    Sketcher.Constraint("DistanceY", -1, 1, 0, 3, 14.049747),
])
sketch15.setExpression("Constraints[0]", "Params.sketch15_diameter")
pocket10 = body.newObject("PartDesign::Pocket", "Pocket009")
pocket10.Profile = sketch15
pocket10.Type = "UpToFirst"
pocket10.Reversed = True

sketch16 = body.newObject("Sketcher::SketchObject", "Sketch015")
sketch16.AttachmentSupport = (doc.getObject("XY_Plane"), [""])
sketch16.MapMode = "FlatFace"
sketch16.addGeometry(Part.Circle(V(83.2, 14, 0), V(0, 0, 1), 2.5), False)
sketch16.addConstraint([
    Sketcher.Constraint("Diameter", 0, 5.0),
    Sketcher.Constraint("DistanceX", -1, 1, 0, 3, 83.181763),
    Sketcher.Constraint("DistanceY", -1, 1, 0, 3, 14.049747),
])
sketch16.setExpression("Constraints[0]", "Params.sketch16_diameter")
pocket11 = body.newObject("PartDesign::Pocket", "Pocket010")
pocket11.Profile = sketch16
pocket11.Type = "UpToFirst"
pocket11.Reversed = True

sketch17 = body.newObject("Sketcher::SketchObject", "Sketch016")
sketch17.AttachmentSupport = (doc.getObject("XY_Plane"), [""])
sketch17.MapMode = "FlatFace"
add_polygon(sketch17, [(84, 116), (84, 76), (26, 76), (26, 116)])
sketch17.addConstraint([
    Sketcher.Constraint("Vertical", 0),
    Sketcher.Constraint("Horizontal", 1),
    Sketcher.Constraint("Vertical", 2),
    Sketcher.Constraint("Horizontal", 3),
    Sketcher.Constraint("DistanceX", 1, 2, 1, 1, 59.0),
    Sketcher.Constraint("DistanceY", 0, 2, 0, 1, 40.0),
    Sketcher.Constraint("DistanceX", -1, 1, 0, 2, 84.5),
    Sketcher.Constraint("DistanceY", -1, 1, 0, 2, 75.542989),
])
sketch17.setExpression("Constraints[8]", "Params.sketch17_width")
sketch17.setExpression("Constraints[9]", "Params.sketch17_height")
pocket12 = body.newObject("PartDesign::Pocket", "Pocket011")
pocket12.Profile = sketch17
pocket12.setExpression("Length", "Params.pocket12_length")
pocket12.Reversed = True

sketch18 = body.newObject("Sketcher::SketchObject", "Sketch017")
sketch18.AttachmentSupport = (doc.getObject("XY_Plane"), [""])
sketch18.MapMode = "FlatFace"
sketch18.AttachmentOffset = App.Placement(V(0, 0, 2), App.Rotation())
add_polygon(sketch18, [(84, 115), (84, 84), (26, 84), (26, 115)])
sketch18.addConstraint([
    Sketcher.Constraint("Vertical", 0),
    Sketcher.Constraint("Horizontal", 1),
    Sketcher.Constraint("Vertical", 2),
    Sketcher.Constraint("Horizontal", 3),
    Sketcher.Constraint("DistanceX", 1, 2, 1, 1, 58.0),
    Sketcher.Constraint("DistanceY", 0, 2, 0, 1, 31.0),
    Sketcher.Constraint("DistanceX", -1, 1, 0, 2, 84.0),
    Sketcher.Constraint("DistanceY", -1, 1, 0, 2, 83.542989),
])
sketch18.setExpression("Constraints[8]", "Params.sketch18_width")
sketch18.setExpression("Constraints[9]", "Params.sketch18_height")
pocket13 = body.newObject("PartDesign::Pocket", "Pocket012")
pocket13.Profile = sketch18
pocket13.setExpression("Length", "Params.pocket13_length")
pocket13.Reversed = True

doc.recompute()
